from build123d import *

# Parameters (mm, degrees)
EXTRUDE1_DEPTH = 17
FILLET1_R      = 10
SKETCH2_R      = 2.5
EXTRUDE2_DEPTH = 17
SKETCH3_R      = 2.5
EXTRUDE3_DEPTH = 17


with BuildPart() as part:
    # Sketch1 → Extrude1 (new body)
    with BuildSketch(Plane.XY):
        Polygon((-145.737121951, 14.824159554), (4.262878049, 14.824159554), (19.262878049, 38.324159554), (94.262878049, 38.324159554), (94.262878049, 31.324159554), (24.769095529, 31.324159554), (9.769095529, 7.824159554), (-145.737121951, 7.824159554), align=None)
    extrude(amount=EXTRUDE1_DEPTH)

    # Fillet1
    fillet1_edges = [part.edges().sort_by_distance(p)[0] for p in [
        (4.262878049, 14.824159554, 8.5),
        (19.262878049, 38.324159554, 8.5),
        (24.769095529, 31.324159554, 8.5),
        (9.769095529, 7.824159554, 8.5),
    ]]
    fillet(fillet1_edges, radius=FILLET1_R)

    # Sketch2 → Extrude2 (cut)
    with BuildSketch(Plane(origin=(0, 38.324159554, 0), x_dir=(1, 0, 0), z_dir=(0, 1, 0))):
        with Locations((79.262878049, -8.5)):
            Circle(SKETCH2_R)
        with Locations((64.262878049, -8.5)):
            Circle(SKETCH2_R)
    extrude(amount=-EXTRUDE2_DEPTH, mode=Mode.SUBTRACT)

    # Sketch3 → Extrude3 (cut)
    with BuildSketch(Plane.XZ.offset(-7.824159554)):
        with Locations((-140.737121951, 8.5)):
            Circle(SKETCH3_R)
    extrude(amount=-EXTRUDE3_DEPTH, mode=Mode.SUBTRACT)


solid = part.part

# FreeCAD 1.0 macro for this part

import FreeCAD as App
import Part
import Sketcher
Q = App.Units.Quantity


def edges_at(feature, points):
    """Names of the edges that pass closest to the given points."""
    edges = feature.Shape.Edges
    near = lambda p: min(range(len(edges)), key=lambda i: edges[i].distToShape(Part.Vertex(*p))[0])
    return sorted({f"Edge{near(p) + 1}" for p in points})

doc = App.newDocument("Part")
body = doc.addObject("PartDesign::Body", "Body")

# Sketch on XY plane
sketch1 = doc.addObject("Sketcher::SketchObject", "Sketch")
body.addObject(sketch1)
sketch1.AttachmentSupport = (doc.XY_Plane, [""])
sketch1.MapMode = "FlatFace"
sketch1.addGeometry([
    Part.LineSegment(App.Vector(4, 15, 0), App.Vector(-146, 15, 0)),  # 0
    Part.LineSegment(App.Vector(-146, 15, 0), App.Vector(-146, 8, 0)),  # 1
    Part.LineSegment(App.Vector(-146, 8, 0), App.Vector(10, 8, 0)),  # 2
    Part.LineSegment(App.Vector(10, 8, 0), App.Vector(25, 31, 0)),  # 3
    Part.LineSegment(App.Vector(25, 31, 0), App.Vector(94, 31, 0)),  # 4
    Part.LineSegment(App.Vector(94, 31, 0), App.Vector(94, 38, 0)),  # 5
    Part.LineSegment(App.Vector(94, 38, 0), App.Vector(19, 38, 0)),  # 6
    Part.LineSegment(App.Vector(19, 38, 0), App.Vector(4, 15, 0)),  # 7
], False)
sketch1.addConstraint([
    Sketcher.Constraint("Coincident", 0, 2, 1, 1),
    Sketcher.Constraint("Coincident", 1, 2, 2, 1),
    Sketcher.Constraint("Coincident", 2, 2, 3, 1),
    Sketcher.Constraint("Coincident", 3, 2, 4, 1),
    Sketcher.Constraint("Coincident", 4, 2, 5, 1),
    Sketcher.Constraint("Coincident", 5, 2, 6, 1),
    Sketcher.Constraint("Coincident", 6, 2, 7, 1),
    Sketcher.Constraint("Coincident", 7, 2, 0, 1),
    Sketcher.Constraint("Horizontal", 0),
    Sketcher.Constraint("Vertical", 1),
    Sketcher.Constraint("Horizontal", 2),
    Sketcher.Constraint("Horizontal", 4),
    Sketcher.Constraint("Vertical", 5),
    Sketcher.Constraint("Horizontal", 6),
    Sketcher.Constraint("Parallel", 3, 7),
    Sketcher.Constraint("Equal", 1, 5),
    Sketcher.Constraint("DistanceX", 0, 2, 0, 1, 150.0),
    Sketcher.Constraint("DistanceX", 6, 2, 6, 1, 75.0),
    Sketcher.Constraint("DistanceY", 1, 2, 1, 1, 7.0),
    Sketcher.Constraint("DistanceX", 2, 2, 3, 2, 15.0),
    Sketcher.Constraint("Angle", 3, Q("57.449997 deg")),
    Sketcher.Constraint("DistanceX", 2, 1, 2, 2, 155.506217),
    Sketcher.Constraint("DistanceX", 0, 2, -1, 1, 145.737122),
    Sketcher.Constraint("DistanceY", -1, 1, 0, 2, 14.82416),
])
pad1 = doc.addObject("PartDesign::Pad", "Pad")
body.addObject(pad1)
pad1.Profile = sketch1
pad1.Length = 17
doc.recompute()

fillet = doc.addObject("PartDesign::Fillet", "Fillet")
body.addObject(fillet)
fillet.Base = (pad1, edges_at(pad1, [
    (4.263, 14.824, 8.5),
    (19.263, 38.324, 8.5),
    (24.769, 31.324, 8.5),
    (9.769, 7.824, 8.5),
]))
fillet.Radius = 10

# Sketch on XZ plane
sketch2 = doc.addObject("Sketcher::SketchObject", "Sketch001")
body.addObject(sketch2)
sketch2.AttachmentSupport = (doc.XZ_Plane, [""])
sketch2.MapMode = "FlatFace"
sketch2.AttachmentOffset = App.Placement(App.Vector(0, 0, -38.32416), App.Rotation())
sketch2.addGeometry([
    Part.Circle(App.Vector(79.3, 8.5, 0), App.Vector(0, 0, 1), 2.5),
    Part.Circle(App.Vector(64.3, 8.5, 0), App.Vector(0, 0, 1), 2.5),
], False)
sketch2.addConstraint([
    Sketcher.Constraint("Equal", 0, 1),
    Sketcher.Constraint("Horizontal", 0, 3, 1, 3),
    Sketcher.Constraint("Diameter", 0, 5.0),
    Sketcher.Constraint("DistanceX", 1, 3, 0, 3, 15.0),
    Sketcher.Constraint("DistanceY", -1, 1, 0, 3, 8.5),
    Sketcher.Constraint("DistanceX", -1, 1, 0, 3, 79.262878),
])
pocket1 = doc.addObject("PartDesign::Pocket", "Pocket")
body.addObject(pocket1)
pocket1.Profile = sketch2
pocket1.Length = 17
pocket1.Reversed = True

# Sketch on XZ plane
sketch3 = doc.addObject("Sketcher::SketchObject", "Sketch002")
body.addObject(sketch3)
sketch3.AttachmentSupport = (doc.XZ_Plane, [""])
sketch3.MapMode = "FlatFace"
sketch3.AttachmentOffset = App.Placement(App.Vector(0, 0, -7.82416), App.Rotation())
sketch3.addGeometry(Part.Circle(App.Vector(-140.7, 8.5, 0), App.Vector(0, 0, 1), 2.5), False)
sketch3.addConstraint([
    Sketcher.Constraint("Diameter", 0, 5.0),
    Sketcher.Constraint("DistanceY", -1, 1, 0, 3, 8.5),
    Sketcher.Constraint("DistanceX", 0, 3, -1, 1, 140.737122),
])
pocket2 = doc.addObject("PartDesign::Pocket", "Pocket001")
body.addObject(pocket2)
pocket2.Profile = sketch3
pocket2.Length = 17

doc.recompute()
